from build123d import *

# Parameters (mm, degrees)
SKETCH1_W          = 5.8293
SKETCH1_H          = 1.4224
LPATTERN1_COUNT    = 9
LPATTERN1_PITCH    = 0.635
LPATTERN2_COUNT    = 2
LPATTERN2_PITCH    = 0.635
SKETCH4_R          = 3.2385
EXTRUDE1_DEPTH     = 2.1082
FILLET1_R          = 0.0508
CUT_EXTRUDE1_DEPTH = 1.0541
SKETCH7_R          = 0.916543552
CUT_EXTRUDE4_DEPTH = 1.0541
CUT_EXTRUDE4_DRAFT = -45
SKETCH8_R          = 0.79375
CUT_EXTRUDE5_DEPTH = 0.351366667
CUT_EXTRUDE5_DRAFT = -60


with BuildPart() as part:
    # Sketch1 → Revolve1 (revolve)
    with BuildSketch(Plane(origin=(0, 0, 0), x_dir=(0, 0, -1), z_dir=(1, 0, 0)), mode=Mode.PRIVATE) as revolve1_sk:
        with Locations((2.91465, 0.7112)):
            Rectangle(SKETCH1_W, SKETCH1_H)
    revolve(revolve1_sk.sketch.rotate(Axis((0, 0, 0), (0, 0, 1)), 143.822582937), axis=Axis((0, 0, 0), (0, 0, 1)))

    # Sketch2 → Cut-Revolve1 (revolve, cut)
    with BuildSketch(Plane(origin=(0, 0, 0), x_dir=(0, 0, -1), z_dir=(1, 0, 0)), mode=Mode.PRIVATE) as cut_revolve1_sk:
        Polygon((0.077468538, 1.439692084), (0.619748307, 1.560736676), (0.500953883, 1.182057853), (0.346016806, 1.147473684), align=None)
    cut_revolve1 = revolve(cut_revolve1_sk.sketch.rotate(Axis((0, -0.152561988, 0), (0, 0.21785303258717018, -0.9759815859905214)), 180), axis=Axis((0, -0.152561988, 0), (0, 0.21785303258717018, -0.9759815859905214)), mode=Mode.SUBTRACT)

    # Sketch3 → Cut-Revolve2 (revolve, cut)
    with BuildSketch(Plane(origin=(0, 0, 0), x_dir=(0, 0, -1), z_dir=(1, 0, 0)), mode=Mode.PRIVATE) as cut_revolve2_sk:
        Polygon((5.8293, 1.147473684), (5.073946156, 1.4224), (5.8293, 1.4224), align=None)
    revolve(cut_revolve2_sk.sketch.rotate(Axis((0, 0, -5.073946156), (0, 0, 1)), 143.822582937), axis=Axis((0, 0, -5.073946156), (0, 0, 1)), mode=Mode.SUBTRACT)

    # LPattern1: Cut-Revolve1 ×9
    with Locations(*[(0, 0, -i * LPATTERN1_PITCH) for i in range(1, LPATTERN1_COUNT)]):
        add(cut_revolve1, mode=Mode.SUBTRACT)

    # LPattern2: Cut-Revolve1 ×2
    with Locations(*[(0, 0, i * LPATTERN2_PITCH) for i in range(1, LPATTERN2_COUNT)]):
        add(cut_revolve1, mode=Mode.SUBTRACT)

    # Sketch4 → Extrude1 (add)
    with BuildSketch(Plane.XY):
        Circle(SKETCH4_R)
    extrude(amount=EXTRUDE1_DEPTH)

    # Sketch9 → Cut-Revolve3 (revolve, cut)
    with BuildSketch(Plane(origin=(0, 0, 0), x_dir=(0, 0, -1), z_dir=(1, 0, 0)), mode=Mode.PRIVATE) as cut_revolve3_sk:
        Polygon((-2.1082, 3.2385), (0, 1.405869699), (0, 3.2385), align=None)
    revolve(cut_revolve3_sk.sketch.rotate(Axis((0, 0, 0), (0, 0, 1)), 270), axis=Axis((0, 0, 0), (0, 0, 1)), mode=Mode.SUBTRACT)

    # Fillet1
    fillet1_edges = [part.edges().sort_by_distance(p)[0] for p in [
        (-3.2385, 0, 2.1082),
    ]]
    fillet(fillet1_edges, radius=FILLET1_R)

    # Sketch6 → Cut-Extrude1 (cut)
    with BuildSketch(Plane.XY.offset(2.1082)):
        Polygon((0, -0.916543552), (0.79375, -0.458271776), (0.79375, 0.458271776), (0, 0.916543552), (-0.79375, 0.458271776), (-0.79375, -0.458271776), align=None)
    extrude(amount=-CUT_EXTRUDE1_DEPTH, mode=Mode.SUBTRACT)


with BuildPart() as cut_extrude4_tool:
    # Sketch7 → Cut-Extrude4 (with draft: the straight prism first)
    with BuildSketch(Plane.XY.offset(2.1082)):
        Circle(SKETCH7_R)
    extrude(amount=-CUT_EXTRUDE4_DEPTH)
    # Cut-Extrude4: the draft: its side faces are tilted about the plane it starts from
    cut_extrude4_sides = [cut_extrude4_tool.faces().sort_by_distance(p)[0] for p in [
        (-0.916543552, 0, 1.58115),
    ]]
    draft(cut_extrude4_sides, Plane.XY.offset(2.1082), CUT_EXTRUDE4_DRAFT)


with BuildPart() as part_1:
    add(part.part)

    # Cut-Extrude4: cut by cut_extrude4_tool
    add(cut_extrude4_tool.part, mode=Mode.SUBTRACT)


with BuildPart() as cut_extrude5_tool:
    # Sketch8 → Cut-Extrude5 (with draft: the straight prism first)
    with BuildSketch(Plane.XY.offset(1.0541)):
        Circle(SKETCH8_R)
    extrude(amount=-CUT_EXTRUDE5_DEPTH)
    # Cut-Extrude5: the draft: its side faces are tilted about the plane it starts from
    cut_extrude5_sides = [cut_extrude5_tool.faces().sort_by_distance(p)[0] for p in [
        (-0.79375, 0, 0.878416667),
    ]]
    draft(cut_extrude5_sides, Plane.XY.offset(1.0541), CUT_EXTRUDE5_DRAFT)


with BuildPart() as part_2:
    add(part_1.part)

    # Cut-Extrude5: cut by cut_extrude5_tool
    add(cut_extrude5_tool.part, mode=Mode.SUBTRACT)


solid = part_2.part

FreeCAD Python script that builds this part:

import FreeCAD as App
import Part
import Sketcher

V = App.Vector
Q = App.Units.Quantity


def edges_at(feature, points):
    """Names of the edges that pass closest to the given points."""
    edges = feature.Shape.Edges
    near = lambda p: min(range(len(edges)), key=lambda i: edges[i].distToShape(Part.Vertex(*p))[0])
    return sorted({f"Edge{near(p) + 1}" for p in points})


def faces_at(feature, points):
    """Names of the faces that lie closest to the given points."""
    faces = feature.Shape.Faces
    near = lambda p: min(range(len(faces)), key=lambda i: faces[i].distToShape(Part.Vertex(*p))[0])
    return sorted({f"Face{near(p) + 1}" for p in points})


def add_polygon(sketch, points):
    """Adds a closed chain of lines whose ends are joined by coincident constraints."""
    first, n = sketch.GeometryCount, len(points)
    for a, b in zip(points, points[1:] + points[:1]):
        sketch.addGeometry(Part.LineSegment(App.Vector(*a, 0), App.Vector(*b, 0)), False)
    for i in range(n):
        sketch.addConstraint(Sketcher.Constraint("Coincident", first + i, 2, first + (i + 1) % n, 1))

doc = App.newDocument("Part")
body = doc.addObject("PartDesign::Body", "Body")

sketch1 = body.newObject("Sketcher::SketchObject", "Sketch")
sketch1.AttachmentSupport = (doc.getObject("YZ_Plane"), [""])
sketch1.MapMode = "FlatFace"
add_polygon(sketch1, [(1.4, 0), (0, 0), (0, -5.8), (1.4, -5.8)])
sketch1.addConstraint([
    Sketcher.Constraint("Horizontal", 0),
    Sketcher.Constraint("Vertical", 1),
    Sketcher.Constraint("Horizontal", 2),
    Sketcher.Constraint("Vertical", 3),
    Sketcher.Constraint("Coincident", 0, 2, -1, 1),
    Sketcher.Constraint("DistanceX", 0, 2, 0, 1, Q("0.056 in")),
    Sketcher.Constraint("DistanceY", 1, 2, 1, 1, Q("0.2295 in")),
])
revolution = body.newObject("PartDesign::Revolution", "Revolution")
revolution.Profile = sketch1
revolution.ReferenceAxis = (sketch1, ["V_Axis"])
revolution.Angle = 360

sketch2 = body.newObject("Sketcher::SketchObject", "Sketch001")
sketch2.AttachmentSupport = (doc.getObject("YZ_Plane"), [""])
sketch2.MapMode = "FlatFace"
add_polygon(sketch2, [(1.56, -0.62), (1.44, -0.08), (1.15, -0.35), (1.18, -0.5)])
sketch2.addGeometry(Part.LineSegment(V(-0.06, -0.41, 0), V(0.06, -0.95, 0)), True)
sketch2.addConstraint([
    Sketcher.Constraint("Parallel", 0, 2),
    Sketcher.Constraint("Parallel", 2, 4),
    Sketcher.Constraint("Equal", 1, 3),
    Sketcher.Constraint("Equal", 0, 4),
    Sketcher.Constraint("Distance", 1, Q("0.015625 in")),
    Sketcher.Constraint("DistanceY", 2, 2, 1, 2, Q("0.0060999 in")),
    Sketcher.Constraint("DistanceY", 4, 2, 1, 2, Q("0.608601 mm")),
    Sketcher.Constraint("Distance", 2, Q("0.15875 mm")),
    Sketcher.Constraint("DistanceY", 0, 2, -1, 1, Q("0.077469 mm")),
    Sketcher.Constraint("DistanceY", 3, 2, -1, 1, Q("0.619748 mm")),
    Sketcher.Constraint("DistanceX", 4, 1, 2, 2, Q("1.24258 mm")),
    Sketcher.Constraint("DistanceX", -1, 1, 0, 2, Q("1.439692 mm")),
])
groove = body.newObject("PartDesign::Groove", "Groove")
groove.Profile = sketch2
groove.ReferenceAxis = (sketch2, ["Axis0"])
groove.Angle = 360

sketch3 = body.newObject("Sketcher::SketchObject", "Sketch002")
sketch3.AttachmentSupport = (doc.getObject("YZ_Plane"), [""])
sketch3.MapMode = "FlatFace"
add_polygon(sketch3, [(1.42, -5.07), (1.15, -5.83), (1.42, -5.83)])
sketch3.addConstraint([
    Sketcher.Constraint("Horizontal", 1),
    Sketcher.Constraint("Vertical", 2),
    Sketcher.Constraint("Angle", 0, Q("-110 deg")),
    Sketcher.Constraint("DistanceX", -1, 1, 1, 2, Q("0.056 in")),
    Sketcher.Constraint("DistanceY", 0, 2, -1, 1, Q("0.2295 in")),
    Sketcher.Constraint("Distance", 0, Q("0.803831 mm")),
])
groove2 = body.newObject("PartDesign::Groove", "Groove001")
groove2.Profile = sketch3
groove2.ReferenceAxis = (sketch3, ["V_Axis"])
groove2.Angle = 360
doc.recompute()

linearpattern = body.newObject("PartDesign::LinearPattern", "LinearPattern")
linearpattern.Originals = [groove]
linearpattern.Direction = (doc.getObject("Z_Axis"), [""])
linearpattern.Mode = "offset"
linearpattern.Offset = Q("0.025 in")
linearpattern.Occurrences = 9
linearpattern.Reversed = True
body.Tip = linearpattern
doc.recompute()

linearpattern2 = body.newObject("PartDesign::LinearPattern", "LinearPattern001")
linearpattern2.Originals = [groove]
linearpattern2.Direction = (doc.getObject("Z_Axis"), [""])
linearpattern2.Mode = "offset"
linearpattern2.Offset = Q("0.025 in")
linearpattern2.Occurrences = 2
body.Tip = linearpattern2

sketch4 = body.newObject("Sketcher::SketchObject", "Sketch003")
sketch4.AttachmentSupport = (doc.getObject("XY_Plane"), [""])
sketch4.MapMode = "FlatFace"
sketch4.addGeometry(Part.Circle(V(0, 0, 0), V(0, 0, 1), 3.2), False)
sketch4.addConstraint([
    Sketcher.Constraint("Coincident", 0, 3, -1, 1),
    Sketcher.Constraint("Diameter", 0, Q("0.255 in")),
])
pad1 = body.newObject("PartDesign::Pad", "Pad")
pad1.Profile = sketch4
pad1.Length = Q("0.083 in")

sketch5 = body.newObject("Sketcher::SketchObject", "Sketch004")
sketch5.AttachmentSupport = (doc.getObject("YZ_Plane"), [""])
sketch5.MapMode = "FlatFace"
add_polygon(sketch5, [(3.2, 2.1), (1.4, 0), (3.2, 0)])
sketch5.addConstraint([
    Sketcher.Constraint("Horizontal", 1),
    Sketcher.Constraint("Vertical", 2),
    Sketcher.Constraint("PointOnObject", 0, 2, -1),
    Sketcher.Constraint("Angle", 0, Q("-131 deg")),
    Sketcher.Constraint("DistanceY", 2, 1, 2, 2, Q("0.083 in")),
    Sketcher.Constraint("DistanceX", -1, 1, 1, 2, Q("0.1275 in")),
])
groove3 = body.newObject("PartDesign::Groove", "Groove002")
groove3.Profile = sketch5
groove3.ReferenceAxis = (sketch5, ["V_Axis"])
groove3.Angle = 360
doc.recompute()

fillet = body.newObject("PartDesign::Fillet", "Fillet")
fillet.Base = (groove3, edges_at(groove3, [(-3.239, 0, 2.108)]))
fillet.Radius = Q("0.002 in")

sketch6 = body.newObject("Sketcher::SketchObject", "Sketch005")
sketch6.AttachmentSupport = (doc.getObject("XY_Plane"), [""])
sketch6.MapMode = "FlatFace"
sketch6.AttachmentOffset = App.Placement(V(0, 0, 0.083 * 25.4), App.Rotation())
add_polygon(sketch6, [(0, -0.9), (0.8, -0.5), (0.8, 0.5), (0, 0.9), (-0.8, 0.5), (-0.8, -0.5)])
sketch6.addConstraint([
    Sketcher.Constraint("Vertical", 1),
    Sketcher.Constraint("Vertical", 4),
    Sketcher.Constraint("Symmetric", 0, 2, 3, 2, -1, 1),
    Sketcher.Constraint("Symmetric", 2, 2, 5, 2, -1, 1),
    Sketcher.Constraint("PointOnObject", 2, 2, -2),
    Sketcher.Constraint("Parallel", 2, 5),
    Sketcher.Constraint("Horizontal", 1, 2, 3, 2),
    Sketcher.Constraint("Angle", 0, Q("30 deg")),
    Sketcher.Constraint("DistanceX", -1, 1, 0, 2, Q("0.03125 in")),
    Sketcher.Constraint("DistanceY", 1, 1, 1, 2, Q("0.916544 mm")),
])
pocket1 = body.newObject("PartDesign::Pocket", "Pocket")
pocket1.Profile = sketch6
pocket1.Length = Q("0.0415 in")
body2 = doc.addObject("PartDesign::Body", "Body001")

sketch7 = body2.newObject("Sketcher::SketchObject", "Sketch006")
sketch7.AttachmentSupport = (doc.getObject("XY_Plane001"), [""])
sketch7.MapMode = "FlatFace"
sketch7.AttachmentOffset = App.Placement(V(0, 0, 0.083 * 25.4), App.Rotation())
sketch7.addGeometry(Part.Circle(V(0, 0, 0), V(0, 0, 1), 0.9), False)
sketch7.addConstraint([
    Sketcher.Constraint("Coincident", 0, 3, -1, 1),
    Sketcher.Constraint("Diameter", 0, Q("1.833087 mm")),
])
pad2 = body2.newObject("PartDesign::Pad", "Pad001")
pad2.Profile = sketch7
pad2.Length = Q("0.0415 in")
pad2.Reversed = True
doc.recompute()

datumplane = body2.newObject("PartDesign::Plane", "DatumPlane")
datumplane.AttachmentSupport = (doc.getObject("XY_Plane001"), [""])
datumplane.MapMode = "FlatFace"
datumplane.AttachmentOffset = App.Placement(V(0, 0, 0.083 * 25.4), App.Rotation())
draft = body2.newObject("PartDesign::Draft", "Draft")
draft.Base = (pad2, faces_at(pad2, [(-0.917, 0, 1.581)]))
draft.NeutralPlane = (datumplane, [""])
draft.Angle = 45
draft.Reversed = True
doc.recompute()

boolean = body.newObject("PartDesign::Boolean", "Boolean")
boolean.Type = "Cut"
boolean.addObjects([body2])
body3 = doc.addObject("PartDesign::Body", "Body002")

sketch8 = body3.newObject("Sketcher::SketchObject", "Sketch007")
sketch8.AttachmentSupport = (doc.getObject("XY_Plane002"), [""])
sketch8.MapMode = "FlatFace"
sketch8.AttachmentOffset = App.Placement(V(0, 0, 0.0415 * 25.4), App.Rotation())
sketch8.addGeometry(Part.Circle(V(0, 0, 0), V(0, 0, 1), 0.8), False)
sketch8.addConstraint([
    Sketcher.Constraint("Coincident", 0, 3, -1, 1),
    Sketcher.Constraint("Diameter", 0, Q("0.0625 in")),
])
pad3 = body3.newObject("PartDesign::Pad", "Pad002")
pad3.Profile = sketch8
pad3.Length = 0.351367
pad3.Reversed = True
doc.recompute()

datumplane2 = body3.newObject("PartDesign::Plane", "DatumPlane001")
datumplane2.AttachmentSupport = (doc.getObject("XY_Plane002"), [""])
datumplane2.MapMode = "FlatFace"
datumplane2.AttachmentOffset = App.Placement(V(0, 0, 0.0415 * 25.4), App.Rotation())
draft2 = body3.newObject("PartDesign::Draft", "Draft001")
draft2.Base = (pad3, faces_at(pad3, [(-0.794, 0, 0.878)]))
draft2.NeutralPlane = (datumplane2, [""])
draft2.Angle = 60
draft2.Reversed = True
doc.recompute()

boolean2 = body.newObject("PartDesign::Boolean", "Boolean001")
boolean2.Type = "Cut"
boolean2.addObjects([body3])

doc.recompute()
